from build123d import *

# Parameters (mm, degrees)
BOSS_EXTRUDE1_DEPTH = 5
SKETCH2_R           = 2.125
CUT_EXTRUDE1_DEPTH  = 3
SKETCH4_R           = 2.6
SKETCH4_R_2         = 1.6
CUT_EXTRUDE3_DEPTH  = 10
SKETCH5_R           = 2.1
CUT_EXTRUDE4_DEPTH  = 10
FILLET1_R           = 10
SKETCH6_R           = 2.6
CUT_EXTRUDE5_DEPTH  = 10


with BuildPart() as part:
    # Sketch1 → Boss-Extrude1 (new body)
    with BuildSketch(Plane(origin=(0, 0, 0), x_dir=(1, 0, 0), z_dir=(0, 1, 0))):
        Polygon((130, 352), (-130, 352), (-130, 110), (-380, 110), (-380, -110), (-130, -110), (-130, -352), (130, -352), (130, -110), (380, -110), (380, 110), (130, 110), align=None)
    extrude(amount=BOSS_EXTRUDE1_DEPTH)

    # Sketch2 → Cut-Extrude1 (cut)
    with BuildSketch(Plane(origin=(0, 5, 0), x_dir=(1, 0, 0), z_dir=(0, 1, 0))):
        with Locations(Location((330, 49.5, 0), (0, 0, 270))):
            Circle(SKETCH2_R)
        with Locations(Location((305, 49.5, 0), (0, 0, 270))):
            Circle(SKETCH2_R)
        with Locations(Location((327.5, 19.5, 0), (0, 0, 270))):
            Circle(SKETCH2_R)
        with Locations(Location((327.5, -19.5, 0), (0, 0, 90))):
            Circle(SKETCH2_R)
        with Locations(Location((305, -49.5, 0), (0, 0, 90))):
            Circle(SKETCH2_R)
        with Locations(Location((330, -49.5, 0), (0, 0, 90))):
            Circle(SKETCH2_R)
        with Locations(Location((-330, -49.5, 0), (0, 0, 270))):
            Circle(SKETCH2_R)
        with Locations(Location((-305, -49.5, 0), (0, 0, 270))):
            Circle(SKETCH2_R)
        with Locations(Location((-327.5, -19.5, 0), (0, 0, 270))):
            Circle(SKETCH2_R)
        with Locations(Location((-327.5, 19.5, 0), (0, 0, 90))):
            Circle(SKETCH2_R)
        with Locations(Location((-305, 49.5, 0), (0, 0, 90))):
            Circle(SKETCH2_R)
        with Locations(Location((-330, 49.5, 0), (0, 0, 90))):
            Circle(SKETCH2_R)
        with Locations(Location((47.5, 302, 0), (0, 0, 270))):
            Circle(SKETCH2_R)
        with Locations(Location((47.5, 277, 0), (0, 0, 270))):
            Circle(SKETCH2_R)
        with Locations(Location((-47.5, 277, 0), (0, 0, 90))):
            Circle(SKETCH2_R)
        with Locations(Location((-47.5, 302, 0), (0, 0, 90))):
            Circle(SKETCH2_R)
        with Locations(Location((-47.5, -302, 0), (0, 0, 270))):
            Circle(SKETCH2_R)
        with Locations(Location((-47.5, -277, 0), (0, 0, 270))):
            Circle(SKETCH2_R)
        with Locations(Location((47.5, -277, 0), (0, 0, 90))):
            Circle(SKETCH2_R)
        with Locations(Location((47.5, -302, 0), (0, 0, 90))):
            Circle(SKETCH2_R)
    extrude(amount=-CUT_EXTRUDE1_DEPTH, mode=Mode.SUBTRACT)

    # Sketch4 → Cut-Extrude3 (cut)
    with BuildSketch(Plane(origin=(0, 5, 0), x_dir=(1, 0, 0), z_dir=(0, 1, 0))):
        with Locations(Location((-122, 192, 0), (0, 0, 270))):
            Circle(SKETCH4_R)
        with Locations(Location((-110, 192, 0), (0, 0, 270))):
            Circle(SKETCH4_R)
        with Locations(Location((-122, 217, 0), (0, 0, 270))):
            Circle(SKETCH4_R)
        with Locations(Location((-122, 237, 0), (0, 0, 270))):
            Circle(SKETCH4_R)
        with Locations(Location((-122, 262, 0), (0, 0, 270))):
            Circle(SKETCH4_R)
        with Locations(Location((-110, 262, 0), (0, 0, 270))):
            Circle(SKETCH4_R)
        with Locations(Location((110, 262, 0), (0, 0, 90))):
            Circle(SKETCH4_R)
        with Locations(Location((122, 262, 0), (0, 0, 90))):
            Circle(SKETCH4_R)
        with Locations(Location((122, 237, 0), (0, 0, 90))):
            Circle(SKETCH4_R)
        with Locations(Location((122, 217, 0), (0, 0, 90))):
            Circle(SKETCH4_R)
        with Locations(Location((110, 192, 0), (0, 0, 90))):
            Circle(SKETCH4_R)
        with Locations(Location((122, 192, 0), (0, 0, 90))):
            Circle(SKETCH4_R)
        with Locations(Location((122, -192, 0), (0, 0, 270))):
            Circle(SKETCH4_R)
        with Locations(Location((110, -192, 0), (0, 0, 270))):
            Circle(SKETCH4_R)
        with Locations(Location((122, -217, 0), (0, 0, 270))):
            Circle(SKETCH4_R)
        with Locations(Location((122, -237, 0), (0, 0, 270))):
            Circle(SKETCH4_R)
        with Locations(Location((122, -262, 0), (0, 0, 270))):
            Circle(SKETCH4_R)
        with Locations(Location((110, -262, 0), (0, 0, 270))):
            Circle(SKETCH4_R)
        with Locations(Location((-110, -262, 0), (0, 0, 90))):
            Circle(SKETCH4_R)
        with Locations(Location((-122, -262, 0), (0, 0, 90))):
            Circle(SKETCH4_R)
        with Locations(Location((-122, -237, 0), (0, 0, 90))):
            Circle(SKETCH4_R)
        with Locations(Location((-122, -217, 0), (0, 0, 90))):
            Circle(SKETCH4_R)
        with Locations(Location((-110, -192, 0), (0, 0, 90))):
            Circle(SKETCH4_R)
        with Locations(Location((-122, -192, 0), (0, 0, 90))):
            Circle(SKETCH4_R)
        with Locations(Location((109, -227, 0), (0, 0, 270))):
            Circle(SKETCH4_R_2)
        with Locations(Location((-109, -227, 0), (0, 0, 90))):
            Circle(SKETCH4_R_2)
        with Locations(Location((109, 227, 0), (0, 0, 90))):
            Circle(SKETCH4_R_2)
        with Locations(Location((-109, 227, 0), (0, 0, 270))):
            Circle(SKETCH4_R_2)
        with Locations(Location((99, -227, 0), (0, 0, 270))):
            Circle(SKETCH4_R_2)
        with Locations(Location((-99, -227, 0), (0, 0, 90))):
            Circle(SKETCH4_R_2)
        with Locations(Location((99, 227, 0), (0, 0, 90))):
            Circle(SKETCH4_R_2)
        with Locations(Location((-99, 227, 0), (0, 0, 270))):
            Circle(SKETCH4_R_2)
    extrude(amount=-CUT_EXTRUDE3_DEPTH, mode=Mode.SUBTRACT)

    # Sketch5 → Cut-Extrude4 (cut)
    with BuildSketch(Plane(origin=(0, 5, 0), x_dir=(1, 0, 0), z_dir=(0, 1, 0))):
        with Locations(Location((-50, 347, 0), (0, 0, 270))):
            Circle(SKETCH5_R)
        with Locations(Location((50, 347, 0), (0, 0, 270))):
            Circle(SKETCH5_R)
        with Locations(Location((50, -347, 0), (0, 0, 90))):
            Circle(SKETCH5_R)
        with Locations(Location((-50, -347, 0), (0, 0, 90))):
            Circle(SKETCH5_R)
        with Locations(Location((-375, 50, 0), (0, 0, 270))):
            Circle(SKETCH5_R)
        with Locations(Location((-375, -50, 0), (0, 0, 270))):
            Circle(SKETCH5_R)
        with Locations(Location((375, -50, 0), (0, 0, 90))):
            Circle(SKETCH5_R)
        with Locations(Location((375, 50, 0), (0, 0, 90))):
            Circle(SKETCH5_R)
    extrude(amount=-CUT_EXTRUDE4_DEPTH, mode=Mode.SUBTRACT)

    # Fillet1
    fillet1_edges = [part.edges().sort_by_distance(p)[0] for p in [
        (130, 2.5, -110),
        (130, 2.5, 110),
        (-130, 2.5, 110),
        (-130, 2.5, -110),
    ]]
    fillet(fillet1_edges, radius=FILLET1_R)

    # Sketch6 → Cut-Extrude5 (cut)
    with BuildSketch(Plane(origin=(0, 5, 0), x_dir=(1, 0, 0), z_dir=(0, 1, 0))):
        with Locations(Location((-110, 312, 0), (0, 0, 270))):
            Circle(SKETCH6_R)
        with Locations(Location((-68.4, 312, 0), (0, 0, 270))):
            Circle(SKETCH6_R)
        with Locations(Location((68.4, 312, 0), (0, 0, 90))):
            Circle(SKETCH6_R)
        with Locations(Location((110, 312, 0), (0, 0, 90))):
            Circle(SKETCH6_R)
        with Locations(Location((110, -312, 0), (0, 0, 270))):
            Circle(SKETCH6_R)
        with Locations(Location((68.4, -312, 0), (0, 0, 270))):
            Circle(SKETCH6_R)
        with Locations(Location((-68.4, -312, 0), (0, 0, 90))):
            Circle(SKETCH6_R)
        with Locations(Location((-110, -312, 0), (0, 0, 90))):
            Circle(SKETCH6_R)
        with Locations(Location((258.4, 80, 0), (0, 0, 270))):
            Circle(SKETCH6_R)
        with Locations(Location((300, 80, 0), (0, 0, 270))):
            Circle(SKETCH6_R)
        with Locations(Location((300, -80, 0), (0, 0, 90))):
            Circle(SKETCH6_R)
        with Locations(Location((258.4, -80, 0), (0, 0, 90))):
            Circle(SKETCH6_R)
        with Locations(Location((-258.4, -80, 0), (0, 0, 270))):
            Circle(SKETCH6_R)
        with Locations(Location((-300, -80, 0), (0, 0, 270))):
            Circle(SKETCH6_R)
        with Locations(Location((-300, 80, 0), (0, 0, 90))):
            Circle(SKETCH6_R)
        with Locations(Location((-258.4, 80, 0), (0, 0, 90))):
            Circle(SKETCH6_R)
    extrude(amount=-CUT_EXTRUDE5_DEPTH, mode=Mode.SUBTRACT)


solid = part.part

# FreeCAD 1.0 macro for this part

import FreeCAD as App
import Part
import Sketcher
from FreeCAD import Vector
Q = App.Units.Quantity


def edges_at(feature, points):
    """Names of the edges that pass closest to the given points."""
    edges = feature.Shape.Edges
    near = lambda p: min(range(len(edges)), key=lambda i: edges[i].distToShape(Part.Vertex(*p))[0])
    return sorted({f"Edge{near(p) + 1}" for p in points})

doc = App.newDocument("Part")
body = doc.addObject("PartDesign::Body", "Body")

sketch1 = body.newObject("Sketcher::SketchObject", "Sketch")
sketch1.AttachmentSupport = (doc.getObject("XZ_Plane"), [""])
sketch1.MapMode = "FlatFace"
sketch1.addGeometry([
    Part.LineSegment(Vector(130, -352, 0), Vector(-130, -352, 0)),
    Part.LineSegment(Vector(-130, -352, 0), Vector(-130, -110, 0)),
    Part.LineSegment(Vector(-130, -110, 0), Vector(-380, -110, 0)),
    Part.LineSegment(Vector(-380, -110, 0), Vector(-380, 110, 0)),
    Part.LineSegment(Vector(-380, 110, 0), Vector(-130, 110, 0)),
    Part.LineSegment(Vector(-130, 110, 0), Vector(-130, 352, 0)),
    Part.LineSegment(Vector(-130, 352, 0), Vector(130, 352, 0)),
    Part.LineSegment(Vector(130, 352, 0), Vector(130, 110, 0)),
    Part.LineSegment(Vector(130, 110, 0), Vector(380, 110, 0)),
    Part.LineSegment(Vector(380, 110, 0), Vector(380, -110, 0)),
    Part.LineSegment(Vector(380, -110, 0), Vector(130, -110, 0)),
    Part.LineSegment(Vector(130, -110, 0), Vector(130, -352, 0)),
], False)
sketch1.addConstraint([
    Sketcher.Constraint("Coincident", 0, 2, 1, 1),
    Sketcher.Constraint("Coincident", 1, 2, 2, 1),
    Sketcher.Constraint("Coincident", 2, 2, 3, 1),
    Sketcher.Constraint("Coincident", 3, 2, 4, 1),
    Sketcher.Constraint("Coincident", 4, 2, 5, 1),
    Sketcher.Constraint("Coincident", 5, 2, 6, 1),
    Sketcher.Constraint("Coincident", 6, 2, 7, 1),
    Sketcher.Constraint("Coincident", 7, 2, 8, 1),
    Sketcher.Constraint("Coincident", 8, 2, 9, 1),
    Sketcher.Constraint("Coincident", 9, 2, 10, 1),
    Sketcher.Constraint("Coincident", 10, 2, 11, 1),
    Sketcher.Constraint("Coincident", 11, 2, 0, 1),
    Sketcher.Constraint("Horizontal", 0),
    Sketcher.Constraint("Vertical", 1),
    Sketcher.Constraint("Horizontal", 2),
    Sketcher.Constraint("Vertical", 3),
    Sketcher.Constraint("Horizontal", 4),
    Sketcher.Constraint("Vertical", 5),
    Sketcher.Constraint("Horizontal", 6),
    Sketcher.Constraint("Vertical", 7),
    Sketcher.Constraint("Horizontal", 8),
    Sketcher.Constraint("Vertical", 9),
    Sketcher.Constraint("Horizontal", 10),
    Sketcher.Constraint("Vertical", 11),
    Sketcher.Constraint("Symmetric", 0, 2, 6, 2, -1, 1),
    Sketcher.Constraint("Symmetric", 2, 2, 8, 2, -1, 1),
    Sketcher.Constraint("Symmetric", 4, 2, 10, 2, -1, 1),
    Sketcher.Constraint("Symmetric", 4, 2, 7, 2, -2),
    Sketcher.Constraint("DistanceX", 0, 2, 0, 1, Q("260 mm")),
    Sketcher.Constraint("DistanceX", 2, 2, 2, 1, Q("250 mm")),
    Sketcher.Constraint("DistanceY", 1, 1, 1, 2, Q("242 mm")),
    Sketcher.Constraint("DistanceY", 3, 1, 3, 2, Q("220 mm")),
])
pad1 = body.newObject("PartDesign::Pad", "Pad")
pad1.Profile = sketch1
pad1.Length = 5
pad1.Reversed = True

sketch2 = body.newObject("Sketcher::SketchObject", "Sketch001")
sketch2.AttachmentSupport = (doc.getObject("XZ_Plane"), [""])
sketch2.MapMode = "FlatFace"
sketch2.AttachmentOffset = App.Placement(Vector(0, 0, -5), App.Rotation())
sketch2.addGeometry([
    Part.Circle(Vector(330, -49.5, 0), Vector(0, 0, 1), 2.125),
    Part.Circle(Vector(305, -49.5, 0), Vector(0, 0, 1), 2.125),
    Part.Circle(Vector(327.5, -19.5, 0), Vector(0, 0, 1), 2.125),
    Part.Circle(Vector(327.5, 19.5, 0), Vector(0, 0, 1), 2.125),
    Part.Circle(Vector(305, 49.5, 0), Vector(0, 0, 1), 2.125),
    Part.Circle(Vector(330, 49.5, 0), Vector(0, 0, 1), 2.125),
    Part.Circle(Vector(-330, 49.5, 0), Vector(0, 0, 1), 2.125),
    Part.Circle(Vector(-305, 49.5, 0), Vector(0, 0, 1), 2.125),
    Part.Circle(Vector(-327.5, 19.5, 0), Vector(0, 0, 1), 2.125),
    Part.Circle(Vector(-327.5, -19.5, 0), Vector(0, 0, 1), 2.125),
    Part.Circle(Vector(-305, -49.5, 0), Vector(0, 0, 1), 2.125),
    Part.Circle(Vector(-330, -49.5, 0), Vector(0, 0, 1), 2.125),
    Part.Circle(Vector(47.5, -302, 0), Vector(0, 0, 1), 2.125),
    Part.Circle(Vector(47.5, -277, 0), Vector(0, 0, 1), 2.125),
    Part.Circle(Vector(-47.5, -277, 0), Vector(0, 0, 1), 2.125),
    Part.Circle(Vector(-47.5, -302, 0), Vector(0, 0, 1), 2.125),
    Part.Circle(Vector(-47.5, 302, 0), Vector(0, 0, 1), 2.125),
    Part.Circle(Vector(-47.5, 277, 0), Vector(0, 0, 1), 2.125),
    Part.Circle(Vector(47.5, 277, 0), Vector(0, 0, 1), 2.125),
    Part.Circle(Vector(47.5, 302, 0), Vector(0, 0, 1), 2.125),
], False)
sketch2.addConstraint([
    Sketcher.Constraint("Equal", 0, 1),
    Sketcher.Constraint("Equal", 1, 2),
    Sketcher.Constraint("Equal", 2, 3),
    Sketcher.Constraint("Equal", 3, 4),
    Sketcher.Constraint("Equal", 4, 5),
    Sketcher.Constraint("Equal", 5, 6),
    Sketcher.Constraint("Equal", 6, 7),
    Sketcher.Constraint("Equal", 7, 8),
    Sketcher.Constraint("Equal", 8, 9),
    Sketcher.Constraint("Equal", 9, 10),
    Sketcher.Constraint("Equal", 10, 11),
    Sketcher.Constraint("Equal", 11, 12),
    Sketcher.Constraint("Equal", 12, 13),
    Sketcher.Constraint("Equal", 13, 14),
    Sketcher.Constraint("Equal", 14, 15),
    Sketcher.Constraint("Equal", 15, 16),
    Sketcher.Constraint("Equal", 16, 17),
    Sketcher.Constraint("Equal", 17, 18),
    Sketcher.Constraint("Equal", 18, 19),
    Sketcher.Constraint("Symmetric", 0, 3, 6, 3, -1, 1),
    Sketcher.Constraint("Symmetric", 1, 3, 7, 3, -1, 1),
    Sketcher.Constraint("Symmetric", 2, 3, 8, 3, -1, 1),
    Sketcher.Constraint("Symmetric", 3, 3, 9, 3, -1, 1),
    Sketcher.Constraint("Symmetric", 4, 3, 10, 3, -1, 1),
    Sketcher.Constraint("Symmetric", 5, 3, 11, 3, -1, 1),
    Sketcher.Constraint("Symmetric", 12, 3, 16, 3, -1, 1),
    Sketcher.Constraint("Symmetric", 13, 3, 17, 3, -1, 1),
    Sketcher.Constraint("Symmetric", 14, 3, 18, 3, -1, 1),
    Sketcher.Constraint("Symmetric", 15, 3, 19, 3, -1, 1),
    Sketcher.Constraint("Symmetric", 5, 3, 6, 3, -2),
    Sketcher.Constraint("Symmetric", 4, 3, 7, 3, -2),
    Sketcher.Constraint("Symmetric", 3, 3, 8, 3, -2),
    Sketcher.Constraint("Symmetric", 13, 3, 14, 3, -2),
    Sketcher.Constraint("Symmetric", 12, 3, 15, 3, -2),
    Sketcher.Constraint("Horizontal", 0, 3, 1, 3),
    Sketcher.Constraint("Vertical", 12, 3, 13, 3),
    Sketcher.Constraint("Diameter", 0, Q("4.25 mm")),
    Sketcher.Constraint("DistanceX", -1, 1, 0, 3, Q("330 mm")),
    Sketcher.Constraint("DistanceX", -1, 1, 1, 3, Q("305 mm")),
    Sketcher.Constraint("DistanceY", 12, 3, -1, 1, Q("302 mm")),
    Sketcher.Constraint("DistanceY", 13, 3, -1, 1, Q("277 mm")),
    Sketcher.Constraint("DistanceY", 0, 3, 2, 3, Q("30 mm")),
    Sketcher.Constraint("DistanceY", 2, 3, 3, 3, Q("39 mm")),
    Sketcher.Constraint("DistanceX", 8, 3, 3, 3, Q("655 mm")),
    Sketcher.Constraint("DistanceX", 12, 3, 2, 3, Q("280 mm")),
])
pocket1 = body.newObject("PartDesign::Pocket", "Pocket")
pocket1.Profile = sketch2
pocket1.Length = 3
pocket1.Reversed = True

sketch3 = body.newObject("Sketcher::SketchObject", "Sketch002")
sketch3.AttachmentSupport = (doc.getObject("XZ_Plane"), [""])
sketch3.MapMode = "FlatFace"
sketch3.AttachmentOffset = App.Placement(Vector(0, 0, -5), App.Rotation())
sketch3.addGeometry([
    Part.Circle(Vector(-122, -192, 0), Vector(0, 0, 1), 2.6),
    Part.Circle(Vector(-110, -192, 0), Vector(0, 0, 1), 2.6),
    Part.Circle(Vector(-122, -217, 0), Vector(0, 0, 1), 2.6),
    Part.Circle(Vector(-122, -237, 0), Vector(0, 0, 1), 2.6),
    Part.Circle(Vector(-122, -262, 0), Vector(0, 0, 1), 2.6),
    Part.Circle(Vector(-110, -262, 0), Vector(0, 0, 1), 2.6),
    Part.Circle(Vector(110, -262, 0), Vector(0, 0, 1), 2.6),
    Part.Circle(Vector(122, -262, 0), Vector(0, 0, 1), 2.6),
    Part.Circle(Vector(122, -237, 0), Vector(0, 0, 1), 2.6),
    Part.Circle(Vector(122, -217, 0), Vector(0, 0, 1), 2.6),
    Part.Circle(Vector(110, -192, 0), Vector(0, 0, 1), 2.6),
    Part.Circle(Vector(122, -192, 0), Vector(0, 0, 1), 2.6),
    Part.Circle(Vector(122, 192, 0), Vector(0, 0, 1), 2.6),
    Part.Circle(Vector(110, 192, 0), Vector(0, 0, 1), 2.6),
    Part.Circle(Vector(122, 217, 0), Vector(0, 0, 1), 2.6),
    Part.Circle(Vector(122, 237, 0), Vector(0, 0, 1), 2.6),
    Part.Circle(Vector(122, 262, 0), Vector(0, 0, 1), 2.6),
    Part.Circle(Vector(110, 262, 0), Vector(0, 0, 1), 2.6),
    Part.Circle(Vector(-110, 262, 0), Vector(0, 0, 1), 2.6),
    Part.Circle(Vector(-122, 262, 0), Vector(0, 0, 1), 2.6),
    Part.Circle(Vector(-122, 237, 0), Vector(0, 0, 1), 2.6),
    Part.Circle(Vector(-122, 217, 0), Vector(0, 0, 1), 2.6),
    Part.Circle(Vector(-110, 192, 0), Vector(0, 0, 1), 2.6),
    Part.Circle(Vector(-122, 192, 0), Vector(0, 0, 1), 2.6),
    Part.Circle(Vector(109, 227, 0), Vector(0, 0, 1), 1.6),
    Part.Circle(Vector(-109, 227, 0), Vector(0, 0, 1), 1.6),
    Part.Circle(Vector(109, -227, 0), Vector(0, 0, 1), 1.6),
    Part.Circle(Vector(-109, -227, 0), Vector(0, 0, 1), 1.6),
    Part.Circle(Vector(99, 227, 0), Vector(0, 0, 1), 1.6),
    Part.Circle(Vector(-99, 227, 0), Vector(0, 0, 1), 1.6),
    Part.Circle(Vector(99, -227, 0), Vector(0, 0, 1), 1.6),
    Part.Circle(Vector(-99, -227, 0), Vector(0, 0, 1), 1.6),
], False)
sketch3.addConstraint([
    Sketcher.Constraint("Equal", 0, 1),
    Sketcher.Constraint("Equal", 1, 2),
    Sketcher.Constraint("Equal", 2, 3),
    Sketcher.Constraint("Equal", 3, 4),
    Sketcher.Constraint("Equal", 4, 5),
    Sketcher.Constraint("Equal", 5, 6),
    Sketcher.Constraint("Equal", 6, 7),
    Sketcher.Constraint("Equal", 7, 8),
    Sketcher.Constraint("Equal", 8, 9),
    Sketcher.Constraint("Equal", 9, 10),
    Sketcher.Constraint("Equal", 10, 11),
    Sketcher.Constraint("Equal", 11, 12),
    Sketcher.Constraint("Equal", 12, 13),
    Sketcher.Constraint("Equal", 13, 14),
    Sketcher.Constraint("Equal", 14, 15),
    Sketcher.Constraint("Equal", 15, 16),
    Sketcher.Constraint("Equal", 16, 17),
    Sketcher.Constraint("Equal", 17, 18),
    Sketcher.Constraint("Equal", 18, 19),
    Sketcher.Constraint("Equal", 19, 20),
    Sketcher.Constraint("Equal", 20, 21),
    Sketcher.Constraint("Equal", 21, 22),
    Sketcher.Constraint("Equal", 22, 23),
    Sketcher.Constraint("Equal", 24, 25),
    Sketcher.Constraint("Equal", 25, 26),
    Sketcher.Constraint("Equal", 26, 27),
    Sketcher.Constraint("Equal", 27, 28),
    Sketcher.Constraint("Equal", 28, 29),
    Sketcher.Constraint("Equal", 29, 30),
    Sketcher.Constraint("Equal", 30, 31),
    Sketcher.Constraint("Symmetric", 0, 3, 12, 3, -1, 1),
    Sketcher.Constraint("Symmetric", 1, 3, 13, 3, -1, 1),
    Sketcher.Constraint("Symmetric", 2, 3, 14, 3, -1, 1),
    Sketcher.Constraint("Symmetric", 3, 3, 15, 3, -1, 1),
    Sketcher.Constraint("Symmetric", 4, 3, 16, 3, -1, 1),
    Sketcher.Constraint("Symmetric", 5, 3, 17, 3, -1, 1),
    Sketcher.Constraint("Symmetric", 6, 3, 18, 3, -1, 1),
    Sketcher.Constraint("Symmetric", 7, 3, 19, 3, -1, 1),
    Sketcher.Constraint("Symmetric", 8, 3, 20, 3, -1, 1),
    Sketcher.Constraint("Symmetric", 9, 3, 21, 3, -1, 1),
    Sketcher.Constraint("Symmetric", 10, 3, 22, 3, -1, 1),
    Sketcher.Constraint("Symmetric", 11, 3, 23, 3, -1, 1),
    Sketcher.Constraint("Symmetric", 25, 3, 26, 3, -1, 1),
    Sketcher.Constraint("Symmetric", 24, 3, 27, 3, -1, 1),
    Sketcher.Constraint("Symmetric", 29, 3, 30, 3, -1, 1),
    Sketcher.Constraint("Symmetric", 28, 3, 31, 3, -1, 1),
    Sketcher.Constraint("Symmetric", 5, 3, 6, 3, -2),
    Sketcher.Constraint("Symmetric", 4, 3, 7, 3, -2),
    Sketcher.Constraint("Symmetric", 3, 3, 8, 3, -2),
    Sketcher.Constraint("Symmetric", 2, 3, 9, 3, -2),
    Sketcher.Constraint("Symmetric", 1, 3, 10, 3, -2),
    Sketcher.Constraint("Symmetric", 0, 3, 11, 3, -2),
    Sketcher.Constraint("Symmetric", 24, 3, 25, 3, -2),
    Sketcher.Constraint("Symmetric", 28, 3, 29, 3, -2),
    Sketcher.Constraint("Horizontal", 0, 3, 1, 3),
    Sketcher.Constraint("Horizontal", 4, 3, 5, 3),
    Sketcher.Constraint("Horizontal", 25, 3, 28, 3),
    Sketcher.Constraint("Vertical", 0, 3, 2, 3),
    Sketcher.Constraint("Vertical", 2, 3, 3, 3),
    Sketcher.Constraint("Vertical", 3, 3, 4, 3),
    Sketcher.Constraint("Vertical", 1, 3, 5, 3),
    Sketcher.Constraint("Diameter", 0, Q("5.2 mm")),
    Sketcher.Constraint("Diameter", 24, Q("3.2 mm")),
    Sketcher.Constraint("DistanceX", 0, 3, -1, 1, Q("122 mm")),
    Sketcher.Constraint("DistanceY", 0, 3, -1, 1, Q("192 mm")),
    Sketcher.Constraint("DistanceX", 1, 3, -1, 1, Q("110 mm")),
    Sketcher.Constraint("DistanceY", 2, 3, -1, 1, Q("217 mm")),
    Sketcher.Constraint("DistanceY", 3, 3, -1, 1, Q("237 mm")),
    Sketcher.Constraint("DistanceY", 4, 3, -1, 1, Q("262 mm")),
    Sketcher.Constraint("DistanceX", -1, 1, 24, 3, Q("109 mm")),
    Sketcher.Constraint("DistanceY", -1, 1, 24, 3, Q("227 mm")),
    Sketcher.Constraint("DistanceX", -1, 1, 28, 3, Q("99 mm")),
])
pocket2 = body.newObject("PartDesign::Pocket", "Pocket001")
pocket2.Profile = sketch3
pocket2.Length = 10
pocket2.Reversed = True

sketch4 = body.newObject("Sketcher::SketchObject", "Sketch003")
sketch4.AttachmentSupport = (doc.getObject("XZ_Plane"), [""])
sketch4.MapMode = "FlatFace"
sketch4.AttachmentOffset = App.Placement(Vector(0, 0, -5), App.Rotation())
sketch4.addGeometry([
    Part.Circle(Vector(-50, -347, 0), Vector(0, 0, 1), 2.1),
    Part.Circle(Vector(50, -347, 0), Vector(0, 0, 1), 2.1),
    Part.Circle(Vector(50, 347, 0), Vector(0, 0, 1), 2.1),
    Part.Circle(Vector(-50, 347, 0), Vector(0, 0, 1), 2.1),
    Part.Circle(Vector(-375, -50, 0), Vector(0, 0, 1), 2.1),
    Part.Circle(Vector(-375, 50, 0), Vector(0, 0, 1), 2.1),
    Part.Circle(Vector(375, 50, 0), Vector(0, 0, 1), 2.1),
    Part.Circle(Vector(375, -50, 0), Vector(0, 0, 1), 2.1),
], False)
sketch4.addConstraint([
    Sketcher.Constraint("Equal", 0, 1),
    Sketcher.Constraint("Equal", 1, 2),
    Sketcher.Constraint("Equal", 2, 3),
    Sketcher.Constraint("Equal", 3, 4),
    Sketcher.Constraint("Equal", 4, 5),
    Sketcher.Constraint("Equal", 5, 6),
    Sketcher.Constraint("Equal", 6, 7),
    Sketcher.Constraint("Symmetric", 0, 3, 2, 3, -1, 1),
    Sketcher.Constraint("Symmetric", 1, 3, 3, 3, -1, 1),
    Sketcher.Constraint("Symmetric", 4, 3, 6, 3, -1, 1),
    Sketcher.Constraint("Symmetric", 5, 3, 7, 3, -1, 1),
    Sketcher.Constraint("Symmetric", 0, 3, 1, 3, -2),
    Sketcher.Constraint("Symmetric", 5, 3, 6, 3, -2),
    Sketcher.Constraint("Diameter", 0, Q("4.2 mm")),
    Sketcher.Constraint("DistanceX", 0, 3, -1, 1, Q("50 mm")),
    Sketcher.Constraint("DistanceY", 0, 3, -1, 1, Q("347 mm")),
    Sketcher.Constraint("DistanceX", 4, 3, -1, 1, Q("375 mm")),
    Sketcher.Constraint("DistanceY", 4, 3, -1, 1, Q("50 mm")),
])
pocket3 = body.newObject("PartDesign::Pocket", "Pocket002")
pocket3.Profile = sketch4
pocket3.Length = 10
pocket3.Reversed = True
doc.recompute()

fillet = body.newObject("PartDesign::Fillet", "Fillet")
fillet.Base = (pocket3, edges_at(pocket3, [
    (130, 2.5, -110),
    (130, 2.5, 110),
    (-130, 2.5, 110),
    (-130, 2.5, -110),
]))
fillet.Radius = 10

sketch5 = body.newObject("Sketcher::SketchObject", "Sketch004")
sketch5.AttachmentSupport = (doc.getObject("XZ_Plane"), [""])
sketch5.MapMode = "FlatFace"
sketch5.AttachmentOffset = App.Placement(Vector(0, 0, -5), App.Rotation())
sketch5.addGeometry([
    Part.Circle(Vector(-110, -312, 0), Vector(0, 0, 1), 2.6),
    Part.Circle(Vector(-68.4, -312, 0), Vector(0, 0, 1), 2.6),
    Part.Circle(Vector(68.4, -312, 0), Vector(0, 0, 1), 2.6),
    Part.Circle(Vector(110, -312, 0), Vector(0, 0, 1), 2.6),
    Part.Circle(Vector(110, 312, 0), Vector(0, 0, 1), 2.6),
    Part.Circle(Vector(68.4, 312, 0), Vector(0, 0, 1), 2.6),
    Part.Circle(Vector(-68.4, 312, 0), Vector(0, 0, 1), 2.6),
    Part.Circle(Vector(-110, 312, 0), Vector(0, 0, 1), 2.6),
    Part.Circle(Vector(258.4, -80, 0), Vector(0, 0, 1), 2.6),
    Part.Circle(Vector(300, -80, 0), Vector(0, 0, 1), 2.6),
    Part.Circle(Vector(300, 80, 0), Vector(0, 0, 1), 2.6),
    Part.Circle(Vector(258.4, 80, 0), Vector(0, 0, 1), 2.6),
    Part.Circle(Vector(-258.4, 80, 0), Vector(0, 0, 1), 2.6),
    Part.Circle(Vector(-300, 80, 0), Vector(0, 0, 1), 2.6),
    Part.Circle(Vector(-300, -80, 0), Vector(0, 0, 1), 2.6),
    Part.Circle(Vector(-258.4, -80, 0), Vector(0, 0, 1), 2.6),
], False)
sketch5.addConstraint([
    Sketcher.Constraint("Equal", 0, 1),
    Sketcher.Constraint("Equal", 1, 2),
    Sketcher.Constraint("Equal", 2, 3),
    Sketcher.Constraint("Equal", 3, 4),
    Sketcher.Constraint("Equal", 4, 5),
    Sketcher.Constraint("Equal", 5, 6),
    Sketcher.Constraint("Equal", 6, 7),
    Sketcher.Constraint("Equal", 7, 8),
    Sketcher.Constraint("Equal", 8, 9),
    Sketcher.Constraint("Equal", 9, 10),
    Sketcher.Constraint("Equal", 10, 11),
    Sketcher.Constraint("Equal", 11, 12),
    Sketcher.Constraint("Equal", 12, 13),
    Sketcher.Constraint("Equal", 13, 14),
    Sketcher.Constraint("Equal", 14, 15),
    Sketcher.Constraint("Symmetric", 0, 3, 4, 3, -1, 1),
    Sketcher.Constraint("Symmetric", 1, 3, 5, 3, -1, 1),
    Sketcher.Constraint("Symmetric", 2, 3, 6, 3, -1, 1),
    Sketcher.Constraint("Symmetric", 3, 3, 7, 3, -1, 1),
    Sketcher.Constraint("Symmetric", 8, 3, 12, 3, -1, 1),
    Sketcher.Constraint("Symmetric", 9, 3, 13, 3, -1, 1),
    Sketcher.Constraint("Symmetric", 10, 3, 14, 3, -1, 1),
    Sketcher.Constraint("Symmetric", 11, 3, 15, 3, -1, 1),
    Sketcher.Constraint("Symmetric", 1, 3, 2, 3, -2),
    Sketcher.Constraint("Symmetric", 0, 3, 3, 3, -2),
    Sketcher.Constraint("Symmetric", 11, 3, 12, 3, -2),
    Sketcher.Constraint("Symmetric", 10, 3, 13, 3, -2),
    Sketcher.Constraint("Horizontal", 0, 3, 1, 3),
    Sketcher.Constraint("Horizontal", 8, 3, 9, 3),
    Sketcher.Constraint("Diameter", 0, Q("5.2 mm")),
    Sketcher.Constraint("DistanceX", 0, 3, -1, 1, Q("110 mm")),
    Sketcher.Constraint("DistanceY", 0, 3, -1, 1, Q("312 mm")),
    Sketcher.Constraint("DistanceY", 8, 3, -1, 1, Q("80 mm")),
    Sketcher.Constraint("DistanceX", -1, 1, 9, 3, Q("300 mm")),
    Sketcher.Constraint("DistanceX", 2, 3, 8, 3, Q("190 mm")),
    Sketcher.Constraint("DistanceX", 1, 3, -1, 1, Q("68.4 mm")),
])
pocket4 = body.newObject("PartDesign::Pocket", "Pocket003")
pocket4.Profile = sketch5
pocket4.Length = 10
pocket4.Reversed = True

doc.recompute()
